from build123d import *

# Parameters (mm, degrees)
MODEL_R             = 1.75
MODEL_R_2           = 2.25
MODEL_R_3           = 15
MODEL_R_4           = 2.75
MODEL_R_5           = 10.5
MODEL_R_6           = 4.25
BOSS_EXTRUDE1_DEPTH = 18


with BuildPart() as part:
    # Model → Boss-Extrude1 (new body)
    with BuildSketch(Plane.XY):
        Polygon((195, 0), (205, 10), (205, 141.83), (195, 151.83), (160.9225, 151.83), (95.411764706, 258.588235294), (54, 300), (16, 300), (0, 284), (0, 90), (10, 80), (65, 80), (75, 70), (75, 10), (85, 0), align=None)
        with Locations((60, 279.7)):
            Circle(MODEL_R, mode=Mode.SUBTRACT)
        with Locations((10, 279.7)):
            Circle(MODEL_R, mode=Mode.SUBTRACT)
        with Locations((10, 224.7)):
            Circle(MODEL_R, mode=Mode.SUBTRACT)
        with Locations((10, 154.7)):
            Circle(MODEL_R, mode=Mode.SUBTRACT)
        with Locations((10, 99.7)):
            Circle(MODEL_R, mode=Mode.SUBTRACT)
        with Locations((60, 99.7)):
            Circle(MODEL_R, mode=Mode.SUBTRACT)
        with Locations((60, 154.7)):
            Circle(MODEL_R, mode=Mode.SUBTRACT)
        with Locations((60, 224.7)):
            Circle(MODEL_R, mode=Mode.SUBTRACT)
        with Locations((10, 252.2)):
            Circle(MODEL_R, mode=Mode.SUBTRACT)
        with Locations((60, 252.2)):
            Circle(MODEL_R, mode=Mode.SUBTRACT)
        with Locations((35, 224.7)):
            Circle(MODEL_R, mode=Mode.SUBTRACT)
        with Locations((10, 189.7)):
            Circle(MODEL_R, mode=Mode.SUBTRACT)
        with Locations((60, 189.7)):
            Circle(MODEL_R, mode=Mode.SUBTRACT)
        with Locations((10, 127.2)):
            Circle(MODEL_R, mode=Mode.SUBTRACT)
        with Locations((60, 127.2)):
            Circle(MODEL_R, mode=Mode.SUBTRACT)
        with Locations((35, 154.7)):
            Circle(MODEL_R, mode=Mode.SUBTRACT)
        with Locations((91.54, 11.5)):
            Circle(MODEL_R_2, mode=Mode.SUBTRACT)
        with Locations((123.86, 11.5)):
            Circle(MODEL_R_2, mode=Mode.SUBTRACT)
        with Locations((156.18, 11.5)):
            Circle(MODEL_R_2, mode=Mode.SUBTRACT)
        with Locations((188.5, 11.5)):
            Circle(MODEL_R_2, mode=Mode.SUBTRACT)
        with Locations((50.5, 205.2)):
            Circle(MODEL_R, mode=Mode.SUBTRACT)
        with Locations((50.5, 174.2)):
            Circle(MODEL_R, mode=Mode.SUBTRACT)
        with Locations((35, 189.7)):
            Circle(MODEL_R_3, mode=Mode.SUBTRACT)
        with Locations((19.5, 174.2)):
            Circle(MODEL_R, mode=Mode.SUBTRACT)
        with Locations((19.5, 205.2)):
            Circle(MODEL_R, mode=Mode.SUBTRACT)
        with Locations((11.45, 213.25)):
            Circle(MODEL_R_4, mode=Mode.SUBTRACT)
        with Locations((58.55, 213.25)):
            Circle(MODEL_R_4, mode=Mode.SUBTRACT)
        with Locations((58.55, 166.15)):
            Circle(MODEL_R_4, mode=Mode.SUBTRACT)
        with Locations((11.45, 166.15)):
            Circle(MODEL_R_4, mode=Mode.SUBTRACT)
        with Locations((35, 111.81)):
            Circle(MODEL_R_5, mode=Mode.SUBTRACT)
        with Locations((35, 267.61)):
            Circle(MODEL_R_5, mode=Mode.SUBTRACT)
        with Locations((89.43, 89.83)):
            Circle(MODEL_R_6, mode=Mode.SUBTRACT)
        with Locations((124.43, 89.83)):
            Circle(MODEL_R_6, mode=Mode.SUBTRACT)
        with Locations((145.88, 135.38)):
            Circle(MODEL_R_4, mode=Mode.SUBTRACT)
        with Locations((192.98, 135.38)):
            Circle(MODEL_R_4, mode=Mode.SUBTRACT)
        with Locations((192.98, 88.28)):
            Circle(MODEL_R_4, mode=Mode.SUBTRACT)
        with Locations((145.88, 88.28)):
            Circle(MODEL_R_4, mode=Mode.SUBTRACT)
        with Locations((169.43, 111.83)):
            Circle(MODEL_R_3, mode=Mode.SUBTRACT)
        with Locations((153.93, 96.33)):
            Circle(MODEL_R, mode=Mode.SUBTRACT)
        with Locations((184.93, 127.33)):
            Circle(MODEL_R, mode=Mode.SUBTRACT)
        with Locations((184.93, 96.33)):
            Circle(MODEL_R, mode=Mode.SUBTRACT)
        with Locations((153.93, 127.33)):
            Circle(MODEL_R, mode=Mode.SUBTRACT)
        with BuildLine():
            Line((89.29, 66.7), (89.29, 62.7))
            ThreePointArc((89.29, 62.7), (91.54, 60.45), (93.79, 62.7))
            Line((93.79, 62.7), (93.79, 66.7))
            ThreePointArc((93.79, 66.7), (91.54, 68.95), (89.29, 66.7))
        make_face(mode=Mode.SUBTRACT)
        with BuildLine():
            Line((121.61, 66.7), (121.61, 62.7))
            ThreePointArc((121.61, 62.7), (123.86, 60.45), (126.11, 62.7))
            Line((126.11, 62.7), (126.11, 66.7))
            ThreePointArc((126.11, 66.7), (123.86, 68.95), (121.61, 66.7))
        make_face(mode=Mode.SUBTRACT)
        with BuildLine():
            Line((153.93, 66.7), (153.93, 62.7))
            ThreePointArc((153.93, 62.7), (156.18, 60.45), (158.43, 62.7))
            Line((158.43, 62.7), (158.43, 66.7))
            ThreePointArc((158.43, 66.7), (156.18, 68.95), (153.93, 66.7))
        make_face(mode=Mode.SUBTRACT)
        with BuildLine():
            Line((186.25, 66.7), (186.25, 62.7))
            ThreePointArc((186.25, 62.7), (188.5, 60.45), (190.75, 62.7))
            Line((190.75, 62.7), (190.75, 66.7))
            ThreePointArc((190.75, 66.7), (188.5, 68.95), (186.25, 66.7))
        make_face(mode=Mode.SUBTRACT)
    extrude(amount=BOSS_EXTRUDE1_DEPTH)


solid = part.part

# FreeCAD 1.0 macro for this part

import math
import FreeCAD as App
import Part
import Sketcher

V = App.Vector
Q = App.Units.Quantity

doc = App.newDocument("Part")
body = doc.addObject("PartDesign::Body", "Body")

# Sketch on XY plane
sketch1 = doc.addObject("Sketcher::SketchObject", "Sketch")
body.addObject(sketch1)
sketch1.AttachmentSupport = (doc.XY_Plane, [""])
sketch1.MapMode = "FlatFace"
sketch1.addGeometry([
    Part.LineSegment(V(195, 0, 0), V(205, 10, 0)),  # 0
    Part.LineSegment(V(205, 10, 0), V(205, 141.8, 0)),  # 1
    Part.LineSegment(V(205, 141.8, 0), V(195, 151.8, 0)),  # 2
    Part.LineSegment(V(195, 151.8, 0), V(160.9, 151.8, 0)),  # 3
    Part.LineSegment(V(160.9, 151.8, 0), V(95.4, 258.6, 0)),  # 4
    Part.LineSegment(V(95.4, 258.6, 0), V(54, 300, 0)),  # 5
    Part.LineSegment(V(54, 300, 0), V(16, 300, 0)),  # 6
    Part.LineSegment(V(16, 300, 0), V(0, 284, 0)),  # 7
    Part.LineSegment(V(0, 284, 0), V(0, 90, 0)),  # 8
    Part.LineSegment(V(0, 90, 0), V(10, 80, 0)),  # 9
    Part.LineSegment(V(10, 80, 0), V(65, 80, 0)),  # 10
    Part.LineSegment(V(65, 80, 0), V(75, 70, 0)),  # 11
    Part.LineSegment(V(75, 70, 0), V(75, 10, 0)),  # 12
    Part.LineSegment(V(75, 10, 0), V(85, 0, 0)),  # 13
    Part.LineSegment(V(85, 0, 0), V(195, 0, 0)),  # 14
    Part.Circle(V(91.5, 11.5, 0), V(0, 0, 1), 2.2),  # 15
    Part.LineSegment(V(89.3, 62.7, 0), V(89.3, 66.7, 0)),  # 16
    Part.ArcOfCircle(Part.Circle(V(91.5, 66.7, 0), V(0, 0, 1), 2.2), math.radians(0), math.radians(180)),  # 17
    Part.LineSegment(V(93.8, 66.7, 0), V(93.8, 62.7, 0)),  # 18
    Part.ArcOfCircle(Part.Circle(V(91.5, 62.7, 0), V(0, 0, 1), 2.2), math.radians(180), math.radians(360)),  # 19
    Part.Circle(V(10, 99.7, 0), V(0, 0, 1), 1.8),  # 20
    Part.Circle(V(10, 127.2, 0), V(0, 0, 1), 1.8),  # 21
    Part.Circle(V(35, 111.8, 0), V(0, 0, 1), 10.5),  # 22
    Part.Circle(V(60, 99.7, 0), V(0, 0, 1), 1.8),  # 23
    Part.Circle(V(89.4, 89.8, 0), V(0, 0, 1), 4.2),  # 24
    Part.Circle(V(60, 127.2, 0), V(0, 0, 1), 1.8),  # 25
    Part.Circle(V(123.9, 11.5, 0), V(0, 0, 1), 2.2),  # 26
    Part.LineSegment(V(121.6, 62.7, 0), V(121.6, 66.7, 0)),  # 27
    Part.ArcOfCircle(Part.Circle(V(123.9, 66.7, 0), V(0, 0, 1), 2.2), math.radians(0), math.radians(180)),  # 28
    Part.LineSegment(V(126.1, 66.7, 0), V(126.1, 62.7, 0)),  # 29
    Part.ArcOfCircle(Part.Circle(V(123.9, 62.7, 0), V(0, 0, 1), 2.2), math.radians(180), math.radians(360)),  # 30
    Part.Circle(V(156.2, 11.5, 0), V(0, 0, 1), 2.2),  # 31
    Part.Circle(V(188.5, 11.5, 0), V(0, 0, 1), 2.2),  # 32
    Part.LineSegment(V(153.9, 62.7, 0), V(153.9, 66.7, 0)),  # 33
    Part.ArcOfCircle(Part.Circle(V(156.2, 66.7, 0), V(0, 0, 1), 2.2), math.radians(0), math.radians(180)),  # 34
    Part.LineSegment(V(158.4, 66.7, 0), V(158.4, 62.7, 0)),  # 35
    Part.ArcOfCircle(Part.Circle(V(156.2, 62.7, 0), V(0, 0, 1), 2.2), math.radians(180), math.radians(360)),  # 36
    Part.LineSegment(V(186.2, 62.7, 0), V(186.2, 66.7, 0)),  # 37
    Part.ArcOfCircle(Part.Circle(V(188.5, 66.7, 0), V(0, 0, 1), 2.2), math.radians(0), math.radians(180)),  # 38
    Part.LineSegment(V(190.8, 66.7, 0), V(190.8, 62.7, 0)),  # 39
    Part.ArcOfCircle(Part.Circle(V(188.5, 62.7, 0), V(0, 0, 1), 2.2), math.radians(180), math.radians(360)),  # 40
    Part.Circle(V(124.4, 89.8, 0), V(0, 0, 1), 4.2),  # 41
    Part.Circle(V(145.9, 88.3, 0), V(0, 0, 1), 2.8),  # 42
    Part.Circle(V(145.9, 135.4, 0), V(0, 0, 1), 2.8),  # 43
    Part.Circle(V(153.9, 96.3, 0), V(0, 0, 1), 1.8),  # 44
    Part.Circle(V(193, 88.3, 0), V(0, 0, 1), 2.8),  # 45
    Part.Circle(V(184.9, 96.3, 0), V(0, 0, 1), 1.8),  # 46
    Part.Circle(V(153.9, 127.3, 0), V(0, 0, 1), 1.8),  # 47
    Part.Circle(V(169.4, 111.8, 0), V(0, 0, 1), 15),  # 48
    Part.Circle(V(184.9, 127.3, 0), V(0, 0, 1), 1.8),  # 49
    Part.Circle(V(193, 135.4, 0), V(0, 0, 1), 2.8),  # 50
    Part.Circle(V(10, 154.7, 0), V(0, 0, 1), 1.8),  # 51
    Part.Circle(V(11.4, 166.2, 0), V(0, 0, 1), 2.8),  # 52
    Part.Circle(V(19.5, 174.2, 0), V(0, 0, 1), 1.8),  # 53
    Part.Circle(V(35, 154.7, 0), V(0, 0, 1), 1.8),  # 54
    Part.Circle(V(50.5, 174.2, 0), V(0, 0, 1), 1.8),  # 55
    Part.Circle(V(10, 189.7, 0), V(0, 0, 1), 1.8),  # 56
    Part.Circle(V(11.4, 213.2, 0), V(0, 0, 1), 2.8),  # 57
    Part.Circle(V(19.5, 205.2, 0), V(0, 0, 1), 1.8),  # 58
    Part.Circle(V(35, 189.7, 0), V(0, 0, 1), 15),  # 59
    Part.Circle(V(50.5, 205.2, 0), V(0, 0, 1), 1.8),  # 60
    Part.Circle(V(60, 154.7, 0), V(0, 0, 1), 1.8),  # 61
    Part.Circle(V(58.5, 166.2, 0), V(0, 0, 1), 2.8),  # 62
    Part.Circle(V(60, 189.7, 0), V(0, 0, 1), 1.8),  # 63
    Part.Circle(V(58.5, 213.2, 0), V(0, 0, 1), 2.8),  # 64
    Part.Circle(V(10, 224.7, 0), V(0, 0, 1), 1.8),  # 65
    Part.Circle(V(35, 224.7, 0), V(0, 0, 1), 1.8),  # 66
    Part.Circle(V(10, 252.2, 0), V(0, 0, 1), 1.8),  # 67
    Part.Circle(V(10, 279.7, 0), V(0, 0, 1), 1.8),  # 68
    Part.Circle(V(35, 267.6, 0), V(0, 0, 1), 10.5),  # 69
    Part.Circle(V(60, 224.7, 0), V(0, 0, 1), 1.8),  # 70
    Part.Circle(V(60, 252.2, 0), V(0, 0, 1), 1.8),  # 71
    Part.Circle(V(60, 279.7, 0), V(0, 0, 1), 1.8),  # 72
], False)
sketch1.addConstraint([
    Sketcher.Constraint("Coincident", 0, 2, 1, 1),
    Sketcher.Constraint("Coincident", 1, 2, 2, 1),
    Sketcher.Constraint("Coincident", 2, 2, 3, 1),
    Sketcher.Constraint("Coincident", 3, 2, 4, 1),
    Sketcher.Constraint("Coincident", 4, 2, 5, 1),
    Sketcher.Constraint("Coincident", 5, 2, 6, 1),
    Sketcher.Constraint("Coincident", 6, 2, 7, 1),
    Sketcher.Constraint("Coincident", 7, 2, 8, 1),
    Sketcher.Constraint("Coincident", 8, 2, 9, 1),
    Sketcher.Constraint("Coincident", 9, 2, 10, 1),
    Sketcher.Constraint("Coincident", 10, 2, 11, 1),
    Sketcher.Constraint("Coincident", 11, 2, 12, 1),
    Sketcher.Constraint("Coincident", 12, 2, 13, 1),
    Sketcher.Constraint("Coincident", 13, 2, 14, 1),
    Sketcher.Constraint("Coincident", 14, 2, 0, 1),
    Sketcher.Constraint("Tangent", 16, 2, 17, 2),
    Sketcher.Constraint("Tangent", 17, 1, 18, 1),
    Sketcher.Constraint("Tangent", 18, 2, 19, 2),
    Sketcher.Constraint("Tangent", 19, 1, 16, 1),
    Sketcher.Constraint("Tangent", 27, 2, 28, 2),
    Sketcher.Constraint("Tangent", 28, 1, 29, 1),
    Sketcher.Constraint("Tangent", 29, 2, 30, 2),
    Sketcher.Constraint("Tangent", 30, 1, 27, 1),
    Sketcher.Constraint("Tangent", 33, 2, 34, 2),
    Sketcher.Constraint("Tangent", 34, 1, 35, 1),
    Sketcher.Constraint("Tangent", 35, 2, 36, 2),
    Sketcher.Constraint("Tangent", 36, 1, 33, 1),
    Sketcher.Constraint("Tangent", 37, 2, 38, 2),
    Sketcher.Constraint("Tangent", 38, 1, 39, 1),
    Sketcher.Constraint("Tangent", 39, 2, 40, 2),
    Sketcher.Constraint("Tangent", 40, 1, 37, 1),
    Sketcher.Constraint("Vertical", 1),
    Sketcher.Constraint("Horizontal", 3),
    Sketcher.Constraint("Horizontal", 6),
    Sketcher.Constraint("Vertical", 8),
    Sketcher.Constraint("Horizontal", 10),
    Sketcher.Constraint("Vertical", 12),
    Sketcher.Constraint("Horizontal", 14),
    Sketcher.Constraint("Vertical", 16),
    Sketcher.Constraint("Vertical", 18),
    Sketcher.Constraint("Vertical", 27),
    Sketcher.Constraint("Vertical", 29),
    Sketcher.Constraint("Vertical", 33),
    Sketcher.Constraint("Vertical", 35),
    Sketcher.Constraint("Vertical", 37),
    Sketcher.Constraint("Vertical", 39),
    Sketcher.Constraint("Equal", 15, 17),
    Sketcher.Constraint("Equal", 20, 21),
    Sketcher.Constraint("Equal", 21, 23),
    Sketcher.Constraint("Equal", 23, 25),
    Sketcher.Constraint("Equal", 19, 26),
    Sketcher.Constraint("Equal", 26, 28),
    Sketcher.Constraint("Equal", 30, 31),
    Sketcher.Constraint("Equal", 31, 32),
    Sketcher.Constraint("Equal", 32, 34),
    Sketcher.Constraint("Equal", 36, 38),
    Sketcher.Constraint("Equal", 24, 41),
    Sketcher.Constraint("Equal", 42, 43),
    Sketcher.Constraint("Equal", 25, 44),
    Sketcher.Constraint("Equal", 43, 45),
    Sketcher.Constraint("Equal", 44, 46),
    Sketcher.Constraint("Equal", 46, 47),
    Sketcher.Constraint("Equal", 47, 49),
    Sketcher.Constraint("Equal", 45, 50),
    Sketcher.Constraint("Equal", 49, 51),
    Sketcher.Constraint("Equal", 50, 52),
    Sketcher.Constraint("Equal", 51, 53),
    Sketcher.Constraint("Equal", 53, 54),
    Sketcher.Constraint("Equal", 54, 55),
    Sketcher.Constraint("Equal", 55, 56),
    Sketcher.Constraint("Equal", 52, 57),
    Sketcher.Constraint("Equal", 56, 58),
    Sketcher.Constraint("Equal", 48, 59),
    Sketcher.Constraint("Equal", 58, 60),
    Sketcher.Constraint("Equal", 60, 61),
    Sketcher.Constraint("Equal", 57, 62),
    Sketcher.Constraint("Equal", 61, 63),
    Sketcher.Constraint("Equal", 62, 64),
    Sketcher.Constraint("Equal", 63, 65),
    Sketcher.Constraint("Equal", 65, 66),
    Sketcher.Constraint("Equal", 66, 67),
    Sketcher.Constraint("Equal", 67, 68),
    Sketcher.Constraint("Equal", 22, 69),
    Sketcher.Constraint("Equal", 68, 70),
    Sketcher.Constraint("Equal", 70, 71),
    Sketcher.Constraint("Equal", 71, 72),
    Sketcher.Constraint("PointOnObject", 7, 2, -2),
    Sketcher.Constraint("PointOnObject", 13, 2, -1),
    Sketcher.Constraint("Perpendicular", 0, 2),
    Sketcher.Constraint("Parallel", 2, 5),
    Sketcher.Constraint("Perpendicular", 5, 7),
    Sketcher.Constraint("Perpendicular", 7, 9),
    Sketcher.Constraint("Parallel", 9, 11),
    Sketcher.Constraint("Parallel", 11, 13),
    Sketcher.Constraint("Horizontal", 20, 3, 23, 3),
    Sketcher.Constraint("Horizontal", 21, 3, 25, 3),
    Sketcher.Constraint("Horizontal", 15, 3, 26, 3),
    Sketcher.Constraint("Horizontal", 17, 3, 28, 3),
    Sketcher.Constraint("Horizontal", 19, 3, 30, 3),
    Sketcher.Constraint("Horizontal", 26, 3, 31, 3),
    Sketcher.Constraint("Horizontal", 31, 3, 32, 3),
    Sketcher.Constraint("Horizontal", 28, 3, 34, 3),
    Sketcher.Constraint("Horizontal", 30, 3, 36, 3),
    Sketcher.Constraint("Horizontal", 34, 3, 38, 3),
    Sketcher.Constraint("Horizontal", 36, 3, 40, 3),
    Sketcher.Constraint("Horizontal", 24, 3, 41, 3),
    Sketcher.Constraint("Horizontal", 42, 3, 45, 3),
    Sketcher.Constraint("Horizontal", 44, 3, 46, 3),
    Sketcher.Constraint("Horizontal", 47, 3, 49, 3),
    Sketcher.Constraint("Horizontal", 43, 3, 50, 3),
    Sketcher.Constraint("Horizontal", 51, 3, 54, 3),
    Sketcher.Constraint("Horizontal", 53, 3, 55, 3),
    Sketcher.Constraint("Horizontal", 56, 3, 59, 3),
    Sketcher.Constraint("Horizontal", 58, 3, 60, 3),
    Sketcher.Constraint("Horizontal", 54, 3, 61, 3),
    Sketcher.Constraint("Horizontal", 52, 3, 62, 3),
    Sketcher.Constraint("Horizontal", 59, 3, 63, 3),
    Sketcher.Constraint("Horizontal", 57, 3, 64, 3),
    Sketcher.Constraint("Horizontal", 65, 3, 66, 3),
    Sketcher.Constraint("Horizontal", 66, 3, 70, 3),
    Sketcher.Constraint("Horizontal", 67, 3, 71, 3),
    Sketcher.Constraint("Horizontal", 68, 3, 72, 3),
    Sketcher.Constraint("Horizontal", 0, 2, 12, 2),
    Sketcher.Constraint("Vertical", 15, 3, 17, 3),
    Sketcher.Constraint("Vertical", 20, 3, 21, 3),
    Sketcher.Constraint("Vertical", 23, 3, 25, 3),
    Sketcher.Constraint("Vertical", 26, 3, 28, 3),
    Sketcher.Constraint("Vertical", 31, 3, 34, 3),
    Sketcher.Constraint("Vertical", 32, 3, 38, 3),
    Sketcher.Constraint("Vertical", 42, 3, 43, 3),
    Sketcher.Constraint("Vertical", 44, 3, 47, 3),
    Sketcher.Constraint("Vertical", 46, 3, 49, 3),
    Sketcher.Constraint("Vertical", 45, 3, 50, 3),
    Sketcher.Constraint("Vertical", 21, 3, 51, 3),
    Sketcher.Constraint("Vertical", 22, 3, 54, 3),
    Sketcher.Constraint("Vertical", 51, 3, 56, 3),
    Sketcher.Constraint("Vertical", 52, 3, 57, 3),
    Sketcher.Constraint("Vertical", 53, 3, 58, 3),
    Sketcher.Constraint("Vertical", 54, 3, 59, 3),
    Sketcher.Constraint("Vertical", 55, 3, 60, 3),
    Sketcher.Constraint("Vertical", 25, 3, 61, 3),
    Sketcher.Constraint("Vertical", 61, 3, 63, 3),
    Sketcher.Constraint("Vertical", 62, 3, 64, 3),
    Sketcher.Constraint("Vertical", 56, 3, 65, 3),
    Sketcher.Constraint("Vertical", 59, 3, 66, 3),
    Sketcher.Constraint("Vertical", 65, 3, 67, 3),
    Sketcher.Constraint("Vertical", 67, 3, 68, 3),
    Sketcher.Constraint("Vertical", 66, 3, 69, 3),
    Sketcher.Constraint("Vertical", 63, 3, 70, 3),
    Sketcher.Constraint("Vertical", 70, 3, 71, 3),
    Sketcher.Constraint("Vertical", 71, 3, 72, 3),
    Sketcher.Constraint("Vertical", 68, 3, 9, 2),
    Sketcher.Constraint("Vertical", 2, 2, 14, 2),
    Sketcher.Constraint("Vertical", 47, 3, 33, 2),
    Sketcher.Constraint("Equal", 0, 2),
    Sketcher.Constraint("Equal", 2, 9),
    Sketcher.Constraint("Equal", 9, 11),
    Sketcher.Constraint("Diameter", 22, Q("21 mm")),
    Sketcher.Constraint("Diameter", 48, Q("30 mm")),
    Sketcher.Constraint("Diameter", 15, Q("4.5 mm")),
    Sketcher.Constraint("Diameter", 20, Q("3.5 mm")),
    Sketcher.Constraint("Diameter", 24, Q("8.5 mm")),
    Sketcher.Constraint("Diameter", 42, Q("5.5 mm")),
    Sketcher.Constraint("DistanceX", 6, 2, 6, 1, Q("38 mm")),
    Sketcher.Constraint("DistanceX", 10, 1, 10, 2, Q("55 mm")),
    Sketcher.Constraint("DistanceX", 14, 1, 14, 2, Q("110 mm")),
    Sketcher.Constraint("DistanceY", 8, 2, 8, 1, Q("194 mm")),
    Sketcher.Constraint("DistanceY", 12, 2, 12, 1, Q("60 mm")),
    Sketcher.Constraint("DistanceY", 16, 1, 16, 2, Q("4 mm")),
    Sketcher.Constraint("DistanceX", -1, 1, 20, 3, Q("10 mm")),
    Sketcher.Constraint("DistanceX", -1, 1, 22, 3, Q("35 mm")),
    Sketcher.Constraint("DistanceX", -1, 1, 23, 3, Q("60 mm")),
    Sketcher.Constraint("DistanceX", -1, 1, 5, 2, Q("54 mm")),
    Sketcher.Constraint("DistanceY", 1, 1, 1, 2, Q("131.83 mm")),
    Sketcher.Constraint("DistanceY", -1, 1, 15, 3, Q("11.5 mm")),
    Sketcher.Constraint("DistanceY", -1, 1, 17, 3, Q("66.7 mm")),
    Sketcher.Constraint("DistanceY", -1, 1, 20, 3, Q("99.7 mm")),
    Sketcher.Constraint("DistanceY", -1, 1, 21, 3, Q("127.2 mm")),
    Sketcher.Constraint("DistanceX", -1, 1, 32, 3, Q("188.5 mm")),
    Sketcher.Constraint("DistanceY", -1, 1, 51, 3, Q("154.7 mm")),
    Sketcher.Constraint("DistanceX", -1, 1, 53, 3, Q("19.5 mm")),
    Sketcher.Constraint("DistanceY", -1, 1, 53, 3, Q("174.2 mm")),
    Sketcher.Constraint("DistanceX", -1, 1, 55, 3, Q("50.5 mm")),
    Sketcher.Constraint("DistanceY", -1, 1, 56, 3, Q("189.7 mm")),
    Sketcher.Constraint("DistanceY", -1, 1, 58, 3, Q("205.2 mm")),
    Sketcher.Constraint("DistanceY", -1, 1, 65, 3, Q("224.7 mm")),
    Sketcher.Constraint("DistanceY", -1, 1, 67, 3, Q("252.2 mm")),
    Sketcher.Constraint("DistanceY", -1, 1, 68, 3, Q("279.7 mm")),
    Sketcher.Constraint("DistanceX", -1, 1, 15, 3, Q("91.54 mm")),
    Sketcher.Constraint("DistanceY", -1, 1, 22, 3, Q("111.81 mm")),
    Sketcher.Constraint("DistanceX", -1, 1, 24, 3, Q("89.43 mm")),
    Sketcher.Constraint("DistanceY", -1, 1, 24, 3, Q("89.83 mm")),
    Sketcher.Constraint("DistanceX", -1, 1, 26, 3, Q("123.86 mm")),
    Sketcher.Constraint("DistanceX", -1, 1, 31, 3, Q("156.18 mm")),
    Sketcher.Constraint("DistanceX", -1, 1, 41, 3, Q("124.43 mm")),
    Sketcher.Constraint("DistanceX", -1, 1, 42, 3, Q("145.88 mm")),
    Sketcher.Constraint("DistanceY", -1, 1, 42, 3, Q("88.28 mm")),
    Sketcher.Constraint("DistanceY", -1, 1, 43, 3, Q("135.38 mm")),
    Sketcher.Constraint("DistanceY", -1, 1, 44, 3, Q("96.33 mm")),
    Sketcher.Constraint("DistanceX", -1, 1, 45, 3, Q("192.98 mm")),
    Sketcher.Constraint("DistanceX", -1, 1, 46, 3, Q("184.93 mm")),
    Sketcher.Constraint("DistanceY", -1, 1, 47, 3, Q("127.33 mm")),
    Sketcher.Constraint("DistanceX", -1, 1, 48, 3, Q("169.43 mm")),
    Sketcher.Constraint("DistanceY", -1, 1, 48, 3, Q("111.83 mm")),
    Sketcher.Constraint("DistanceX", -1, 1, 52, 3, Q("11.45 mm")),
    Sketcher.Constraint("DistanceY", -1, 1, 52, 3, Q("166.15 mm")),
    Sketcher.Constraint("DistanceY", -1, 1, 57, 3, Q("213.25 mm")),
    Sketcher.Constraint("DistanceX", -1, 1, 62, 3, Q("58.55 mm")),
    Sketcher.Constraint("DistanceY", -1, 1, 69, 3, Q("267.61 mm")),
    Sketcher.Constraint("DistanceX", 3, 2, 3, 1, Q("34.0775 mm")),
    Sketcher.Constraint("Distance", 5, Q("58.565079 mm")),
])
pad1 = doc.addObject("PartDesign::Pad", "Pad")
body.addObject(pad1)
pad1.Profile = sketch1
pad1.Length = 18

doc.recompute()
